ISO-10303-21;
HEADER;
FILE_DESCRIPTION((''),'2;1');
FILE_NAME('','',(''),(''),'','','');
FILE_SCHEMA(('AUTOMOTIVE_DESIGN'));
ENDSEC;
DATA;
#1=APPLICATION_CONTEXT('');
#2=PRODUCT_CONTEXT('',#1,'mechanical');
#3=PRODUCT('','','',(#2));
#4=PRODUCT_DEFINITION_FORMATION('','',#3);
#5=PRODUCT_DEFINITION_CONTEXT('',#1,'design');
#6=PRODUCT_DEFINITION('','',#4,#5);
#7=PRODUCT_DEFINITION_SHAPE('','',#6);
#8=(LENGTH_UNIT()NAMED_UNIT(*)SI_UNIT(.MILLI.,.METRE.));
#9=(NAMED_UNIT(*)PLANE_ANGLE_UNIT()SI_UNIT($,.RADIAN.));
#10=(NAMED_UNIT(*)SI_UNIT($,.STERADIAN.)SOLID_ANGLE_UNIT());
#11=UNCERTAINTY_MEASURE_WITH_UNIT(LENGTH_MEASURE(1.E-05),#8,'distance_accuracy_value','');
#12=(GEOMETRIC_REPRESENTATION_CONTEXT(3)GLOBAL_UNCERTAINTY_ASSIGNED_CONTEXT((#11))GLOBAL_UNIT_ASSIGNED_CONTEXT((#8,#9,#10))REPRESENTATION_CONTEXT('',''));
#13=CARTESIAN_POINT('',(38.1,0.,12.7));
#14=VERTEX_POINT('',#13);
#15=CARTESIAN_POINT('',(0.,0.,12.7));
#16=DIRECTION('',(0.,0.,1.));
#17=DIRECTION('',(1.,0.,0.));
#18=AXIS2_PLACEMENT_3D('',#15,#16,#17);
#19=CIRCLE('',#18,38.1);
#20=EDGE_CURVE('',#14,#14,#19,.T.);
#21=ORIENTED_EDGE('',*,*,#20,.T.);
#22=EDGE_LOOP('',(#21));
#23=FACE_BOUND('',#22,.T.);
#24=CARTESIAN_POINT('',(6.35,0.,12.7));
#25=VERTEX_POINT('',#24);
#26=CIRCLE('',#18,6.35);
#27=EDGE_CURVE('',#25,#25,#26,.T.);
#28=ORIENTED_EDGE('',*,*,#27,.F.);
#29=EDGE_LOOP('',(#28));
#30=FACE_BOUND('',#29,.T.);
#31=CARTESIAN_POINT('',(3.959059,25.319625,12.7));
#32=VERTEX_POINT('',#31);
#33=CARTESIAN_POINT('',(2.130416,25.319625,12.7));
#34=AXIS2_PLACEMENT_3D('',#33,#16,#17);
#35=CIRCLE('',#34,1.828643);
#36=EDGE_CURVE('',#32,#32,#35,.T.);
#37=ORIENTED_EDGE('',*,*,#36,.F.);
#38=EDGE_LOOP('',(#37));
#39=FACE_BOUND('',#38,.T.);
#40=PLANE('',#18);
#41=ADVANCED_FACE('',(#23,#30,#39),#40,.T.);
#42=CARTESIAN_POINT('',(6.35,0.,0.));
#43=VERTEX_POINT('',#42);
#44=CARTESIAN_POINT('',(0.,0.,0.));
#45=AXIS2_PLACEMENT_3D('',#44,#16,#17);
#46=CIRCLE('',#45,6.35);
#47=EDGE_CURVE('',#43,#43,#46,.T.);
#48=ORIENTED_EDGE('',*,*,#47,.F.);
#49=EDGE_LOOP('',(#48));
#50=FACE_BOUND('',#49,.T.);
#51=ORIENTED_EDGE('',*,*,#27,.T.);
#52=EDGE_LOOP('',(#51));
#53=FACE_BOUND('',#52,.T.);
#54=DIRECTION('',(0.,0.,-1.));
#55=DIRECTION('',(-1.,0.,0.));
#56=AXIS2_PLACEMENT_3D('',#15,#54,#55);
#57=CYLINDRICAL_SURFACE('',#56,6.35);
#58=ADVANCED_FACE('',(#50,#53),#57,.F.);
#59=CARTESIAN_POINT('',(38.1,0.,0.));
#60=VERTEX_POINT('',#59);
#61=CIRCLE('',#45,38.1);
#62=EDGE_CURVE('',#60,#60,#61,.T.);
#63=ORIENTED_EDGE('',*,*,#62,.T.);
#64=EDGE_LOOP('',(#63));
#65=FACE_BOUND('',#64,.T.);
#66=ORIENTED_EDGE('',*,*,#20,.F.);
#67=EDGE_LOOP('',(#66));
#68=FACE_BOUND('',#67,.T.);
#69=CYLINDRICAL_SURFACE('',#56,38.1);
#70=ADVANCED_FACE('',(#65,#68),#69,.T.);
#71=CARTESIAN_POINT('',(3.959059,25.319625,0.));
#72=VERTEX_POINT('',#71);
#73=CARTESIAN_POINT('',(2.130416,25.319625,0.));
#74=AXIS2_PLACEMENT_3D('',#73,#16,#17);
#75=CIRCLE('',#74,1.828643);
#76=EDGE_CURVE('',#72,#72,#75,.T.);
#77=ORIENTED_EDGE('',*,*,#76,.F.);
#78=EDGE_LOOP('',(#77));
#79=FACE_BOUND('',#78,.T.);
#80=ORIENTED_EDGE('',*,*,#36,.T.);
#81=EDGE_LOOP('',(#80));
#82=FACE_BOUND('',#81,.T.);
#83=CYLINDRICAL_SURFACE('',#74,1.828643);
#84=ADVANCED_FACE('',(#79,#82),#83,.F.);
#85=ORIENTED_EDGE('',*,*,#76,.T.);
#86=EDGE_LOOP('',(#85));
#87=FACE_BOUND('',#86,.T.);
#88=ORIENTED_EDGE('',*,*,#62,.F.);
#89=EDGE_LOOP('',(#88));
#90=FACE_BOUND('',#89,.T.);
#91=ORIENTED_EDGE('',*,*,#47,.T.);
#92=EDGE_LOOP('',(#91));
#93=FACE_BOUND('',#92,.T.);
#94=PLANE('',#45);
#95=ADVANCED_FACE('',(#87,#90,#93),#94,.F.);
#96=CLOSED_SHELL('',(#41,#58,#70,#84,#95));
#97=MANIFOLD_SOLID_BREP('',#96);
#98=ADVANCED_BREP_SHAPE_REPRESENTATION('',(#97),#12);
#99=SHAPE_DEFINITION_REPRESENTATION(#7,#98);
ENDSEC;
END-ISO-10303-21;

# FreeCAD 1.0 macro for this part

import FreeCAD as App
import Part
import Sketcher
Q = App.Units.Quantity

doc = App.newDocument("Part")
body = doc.addObject("PartDesign::Body", "Body")

sketch1 = doc.addObject("Sketcher::SketchObject", "Sketch")
body.addObject(sketch1)
sketch1.AttachmentSupport = (doc.XY_Plane, [""])
sketch1.MapMode = "FlatFace"
sketch1.addGeometry(Part.Circle(App.Vector(0, 0, 0), App.Vector(0, 0, 1), 38), False)
sketch1.addGeometry(Part.Circle(App.Vector(0, 0, 0), App.Vector(0, 0, 1), 6), False)
sketch1.addConstraint(Sketcher.Constraint("Coincident", 0, 3, -1, 1))
sketch1.addConstraint(Sketcher.Constraint("Coincident", 1, 3, -1, 1))
sketch1.addConstraint(Sketcher.Constraint("Diameter", 0, Q("3 in")))
sketch1.addConstraint(Sketcher.Constraint("Diameter", 1, Q("0.5 in")))
pad1 = doc.addObject("PartDesign::Pad", "Pad")
body.addObject(pad1)
pad1.Profile = sketch1
pad1.Length = Q("0.5 in")

sketch2 = doc.addObject("Sketcher::SketchObject", "Sketch001")
body.addObject(sketch2)
sketch2.AttachmentSupport = (doc.XY_Plane, [""])
sketch2.MapMode = "FlatFace"
sketch2.AttachmentOffset = App.Placement(App.Vector(0, 0, 0.5 * 25.4), App.Rotation())
sketch2.addGeometry(Part.Circle(App.Vector(2.1, 25.3, 0), App.Vector(0, 0, 1), 1.8), False)
sketch2.addConstraint(Sketcher.Constraint("Diameter", 0, Q("3.657285 mm")))
sketch2.addConstraint(Sketcher.Constraint("DistanceX", -1, 1, 0, 3, Q("2.130416 mm")))
sketch2.addConstraint(Sketcher.Constraint("DistanceY", -1, 1, 0, 3, Q("25.319625 mm")))
pocket1 = doc.addObject("PartDesign::Pocket", "Pocket")
body.addObject(pocket1)
pocket1.Profile = sketch2
pocket1.Type = "ThroughAll"

doc.recompute()
